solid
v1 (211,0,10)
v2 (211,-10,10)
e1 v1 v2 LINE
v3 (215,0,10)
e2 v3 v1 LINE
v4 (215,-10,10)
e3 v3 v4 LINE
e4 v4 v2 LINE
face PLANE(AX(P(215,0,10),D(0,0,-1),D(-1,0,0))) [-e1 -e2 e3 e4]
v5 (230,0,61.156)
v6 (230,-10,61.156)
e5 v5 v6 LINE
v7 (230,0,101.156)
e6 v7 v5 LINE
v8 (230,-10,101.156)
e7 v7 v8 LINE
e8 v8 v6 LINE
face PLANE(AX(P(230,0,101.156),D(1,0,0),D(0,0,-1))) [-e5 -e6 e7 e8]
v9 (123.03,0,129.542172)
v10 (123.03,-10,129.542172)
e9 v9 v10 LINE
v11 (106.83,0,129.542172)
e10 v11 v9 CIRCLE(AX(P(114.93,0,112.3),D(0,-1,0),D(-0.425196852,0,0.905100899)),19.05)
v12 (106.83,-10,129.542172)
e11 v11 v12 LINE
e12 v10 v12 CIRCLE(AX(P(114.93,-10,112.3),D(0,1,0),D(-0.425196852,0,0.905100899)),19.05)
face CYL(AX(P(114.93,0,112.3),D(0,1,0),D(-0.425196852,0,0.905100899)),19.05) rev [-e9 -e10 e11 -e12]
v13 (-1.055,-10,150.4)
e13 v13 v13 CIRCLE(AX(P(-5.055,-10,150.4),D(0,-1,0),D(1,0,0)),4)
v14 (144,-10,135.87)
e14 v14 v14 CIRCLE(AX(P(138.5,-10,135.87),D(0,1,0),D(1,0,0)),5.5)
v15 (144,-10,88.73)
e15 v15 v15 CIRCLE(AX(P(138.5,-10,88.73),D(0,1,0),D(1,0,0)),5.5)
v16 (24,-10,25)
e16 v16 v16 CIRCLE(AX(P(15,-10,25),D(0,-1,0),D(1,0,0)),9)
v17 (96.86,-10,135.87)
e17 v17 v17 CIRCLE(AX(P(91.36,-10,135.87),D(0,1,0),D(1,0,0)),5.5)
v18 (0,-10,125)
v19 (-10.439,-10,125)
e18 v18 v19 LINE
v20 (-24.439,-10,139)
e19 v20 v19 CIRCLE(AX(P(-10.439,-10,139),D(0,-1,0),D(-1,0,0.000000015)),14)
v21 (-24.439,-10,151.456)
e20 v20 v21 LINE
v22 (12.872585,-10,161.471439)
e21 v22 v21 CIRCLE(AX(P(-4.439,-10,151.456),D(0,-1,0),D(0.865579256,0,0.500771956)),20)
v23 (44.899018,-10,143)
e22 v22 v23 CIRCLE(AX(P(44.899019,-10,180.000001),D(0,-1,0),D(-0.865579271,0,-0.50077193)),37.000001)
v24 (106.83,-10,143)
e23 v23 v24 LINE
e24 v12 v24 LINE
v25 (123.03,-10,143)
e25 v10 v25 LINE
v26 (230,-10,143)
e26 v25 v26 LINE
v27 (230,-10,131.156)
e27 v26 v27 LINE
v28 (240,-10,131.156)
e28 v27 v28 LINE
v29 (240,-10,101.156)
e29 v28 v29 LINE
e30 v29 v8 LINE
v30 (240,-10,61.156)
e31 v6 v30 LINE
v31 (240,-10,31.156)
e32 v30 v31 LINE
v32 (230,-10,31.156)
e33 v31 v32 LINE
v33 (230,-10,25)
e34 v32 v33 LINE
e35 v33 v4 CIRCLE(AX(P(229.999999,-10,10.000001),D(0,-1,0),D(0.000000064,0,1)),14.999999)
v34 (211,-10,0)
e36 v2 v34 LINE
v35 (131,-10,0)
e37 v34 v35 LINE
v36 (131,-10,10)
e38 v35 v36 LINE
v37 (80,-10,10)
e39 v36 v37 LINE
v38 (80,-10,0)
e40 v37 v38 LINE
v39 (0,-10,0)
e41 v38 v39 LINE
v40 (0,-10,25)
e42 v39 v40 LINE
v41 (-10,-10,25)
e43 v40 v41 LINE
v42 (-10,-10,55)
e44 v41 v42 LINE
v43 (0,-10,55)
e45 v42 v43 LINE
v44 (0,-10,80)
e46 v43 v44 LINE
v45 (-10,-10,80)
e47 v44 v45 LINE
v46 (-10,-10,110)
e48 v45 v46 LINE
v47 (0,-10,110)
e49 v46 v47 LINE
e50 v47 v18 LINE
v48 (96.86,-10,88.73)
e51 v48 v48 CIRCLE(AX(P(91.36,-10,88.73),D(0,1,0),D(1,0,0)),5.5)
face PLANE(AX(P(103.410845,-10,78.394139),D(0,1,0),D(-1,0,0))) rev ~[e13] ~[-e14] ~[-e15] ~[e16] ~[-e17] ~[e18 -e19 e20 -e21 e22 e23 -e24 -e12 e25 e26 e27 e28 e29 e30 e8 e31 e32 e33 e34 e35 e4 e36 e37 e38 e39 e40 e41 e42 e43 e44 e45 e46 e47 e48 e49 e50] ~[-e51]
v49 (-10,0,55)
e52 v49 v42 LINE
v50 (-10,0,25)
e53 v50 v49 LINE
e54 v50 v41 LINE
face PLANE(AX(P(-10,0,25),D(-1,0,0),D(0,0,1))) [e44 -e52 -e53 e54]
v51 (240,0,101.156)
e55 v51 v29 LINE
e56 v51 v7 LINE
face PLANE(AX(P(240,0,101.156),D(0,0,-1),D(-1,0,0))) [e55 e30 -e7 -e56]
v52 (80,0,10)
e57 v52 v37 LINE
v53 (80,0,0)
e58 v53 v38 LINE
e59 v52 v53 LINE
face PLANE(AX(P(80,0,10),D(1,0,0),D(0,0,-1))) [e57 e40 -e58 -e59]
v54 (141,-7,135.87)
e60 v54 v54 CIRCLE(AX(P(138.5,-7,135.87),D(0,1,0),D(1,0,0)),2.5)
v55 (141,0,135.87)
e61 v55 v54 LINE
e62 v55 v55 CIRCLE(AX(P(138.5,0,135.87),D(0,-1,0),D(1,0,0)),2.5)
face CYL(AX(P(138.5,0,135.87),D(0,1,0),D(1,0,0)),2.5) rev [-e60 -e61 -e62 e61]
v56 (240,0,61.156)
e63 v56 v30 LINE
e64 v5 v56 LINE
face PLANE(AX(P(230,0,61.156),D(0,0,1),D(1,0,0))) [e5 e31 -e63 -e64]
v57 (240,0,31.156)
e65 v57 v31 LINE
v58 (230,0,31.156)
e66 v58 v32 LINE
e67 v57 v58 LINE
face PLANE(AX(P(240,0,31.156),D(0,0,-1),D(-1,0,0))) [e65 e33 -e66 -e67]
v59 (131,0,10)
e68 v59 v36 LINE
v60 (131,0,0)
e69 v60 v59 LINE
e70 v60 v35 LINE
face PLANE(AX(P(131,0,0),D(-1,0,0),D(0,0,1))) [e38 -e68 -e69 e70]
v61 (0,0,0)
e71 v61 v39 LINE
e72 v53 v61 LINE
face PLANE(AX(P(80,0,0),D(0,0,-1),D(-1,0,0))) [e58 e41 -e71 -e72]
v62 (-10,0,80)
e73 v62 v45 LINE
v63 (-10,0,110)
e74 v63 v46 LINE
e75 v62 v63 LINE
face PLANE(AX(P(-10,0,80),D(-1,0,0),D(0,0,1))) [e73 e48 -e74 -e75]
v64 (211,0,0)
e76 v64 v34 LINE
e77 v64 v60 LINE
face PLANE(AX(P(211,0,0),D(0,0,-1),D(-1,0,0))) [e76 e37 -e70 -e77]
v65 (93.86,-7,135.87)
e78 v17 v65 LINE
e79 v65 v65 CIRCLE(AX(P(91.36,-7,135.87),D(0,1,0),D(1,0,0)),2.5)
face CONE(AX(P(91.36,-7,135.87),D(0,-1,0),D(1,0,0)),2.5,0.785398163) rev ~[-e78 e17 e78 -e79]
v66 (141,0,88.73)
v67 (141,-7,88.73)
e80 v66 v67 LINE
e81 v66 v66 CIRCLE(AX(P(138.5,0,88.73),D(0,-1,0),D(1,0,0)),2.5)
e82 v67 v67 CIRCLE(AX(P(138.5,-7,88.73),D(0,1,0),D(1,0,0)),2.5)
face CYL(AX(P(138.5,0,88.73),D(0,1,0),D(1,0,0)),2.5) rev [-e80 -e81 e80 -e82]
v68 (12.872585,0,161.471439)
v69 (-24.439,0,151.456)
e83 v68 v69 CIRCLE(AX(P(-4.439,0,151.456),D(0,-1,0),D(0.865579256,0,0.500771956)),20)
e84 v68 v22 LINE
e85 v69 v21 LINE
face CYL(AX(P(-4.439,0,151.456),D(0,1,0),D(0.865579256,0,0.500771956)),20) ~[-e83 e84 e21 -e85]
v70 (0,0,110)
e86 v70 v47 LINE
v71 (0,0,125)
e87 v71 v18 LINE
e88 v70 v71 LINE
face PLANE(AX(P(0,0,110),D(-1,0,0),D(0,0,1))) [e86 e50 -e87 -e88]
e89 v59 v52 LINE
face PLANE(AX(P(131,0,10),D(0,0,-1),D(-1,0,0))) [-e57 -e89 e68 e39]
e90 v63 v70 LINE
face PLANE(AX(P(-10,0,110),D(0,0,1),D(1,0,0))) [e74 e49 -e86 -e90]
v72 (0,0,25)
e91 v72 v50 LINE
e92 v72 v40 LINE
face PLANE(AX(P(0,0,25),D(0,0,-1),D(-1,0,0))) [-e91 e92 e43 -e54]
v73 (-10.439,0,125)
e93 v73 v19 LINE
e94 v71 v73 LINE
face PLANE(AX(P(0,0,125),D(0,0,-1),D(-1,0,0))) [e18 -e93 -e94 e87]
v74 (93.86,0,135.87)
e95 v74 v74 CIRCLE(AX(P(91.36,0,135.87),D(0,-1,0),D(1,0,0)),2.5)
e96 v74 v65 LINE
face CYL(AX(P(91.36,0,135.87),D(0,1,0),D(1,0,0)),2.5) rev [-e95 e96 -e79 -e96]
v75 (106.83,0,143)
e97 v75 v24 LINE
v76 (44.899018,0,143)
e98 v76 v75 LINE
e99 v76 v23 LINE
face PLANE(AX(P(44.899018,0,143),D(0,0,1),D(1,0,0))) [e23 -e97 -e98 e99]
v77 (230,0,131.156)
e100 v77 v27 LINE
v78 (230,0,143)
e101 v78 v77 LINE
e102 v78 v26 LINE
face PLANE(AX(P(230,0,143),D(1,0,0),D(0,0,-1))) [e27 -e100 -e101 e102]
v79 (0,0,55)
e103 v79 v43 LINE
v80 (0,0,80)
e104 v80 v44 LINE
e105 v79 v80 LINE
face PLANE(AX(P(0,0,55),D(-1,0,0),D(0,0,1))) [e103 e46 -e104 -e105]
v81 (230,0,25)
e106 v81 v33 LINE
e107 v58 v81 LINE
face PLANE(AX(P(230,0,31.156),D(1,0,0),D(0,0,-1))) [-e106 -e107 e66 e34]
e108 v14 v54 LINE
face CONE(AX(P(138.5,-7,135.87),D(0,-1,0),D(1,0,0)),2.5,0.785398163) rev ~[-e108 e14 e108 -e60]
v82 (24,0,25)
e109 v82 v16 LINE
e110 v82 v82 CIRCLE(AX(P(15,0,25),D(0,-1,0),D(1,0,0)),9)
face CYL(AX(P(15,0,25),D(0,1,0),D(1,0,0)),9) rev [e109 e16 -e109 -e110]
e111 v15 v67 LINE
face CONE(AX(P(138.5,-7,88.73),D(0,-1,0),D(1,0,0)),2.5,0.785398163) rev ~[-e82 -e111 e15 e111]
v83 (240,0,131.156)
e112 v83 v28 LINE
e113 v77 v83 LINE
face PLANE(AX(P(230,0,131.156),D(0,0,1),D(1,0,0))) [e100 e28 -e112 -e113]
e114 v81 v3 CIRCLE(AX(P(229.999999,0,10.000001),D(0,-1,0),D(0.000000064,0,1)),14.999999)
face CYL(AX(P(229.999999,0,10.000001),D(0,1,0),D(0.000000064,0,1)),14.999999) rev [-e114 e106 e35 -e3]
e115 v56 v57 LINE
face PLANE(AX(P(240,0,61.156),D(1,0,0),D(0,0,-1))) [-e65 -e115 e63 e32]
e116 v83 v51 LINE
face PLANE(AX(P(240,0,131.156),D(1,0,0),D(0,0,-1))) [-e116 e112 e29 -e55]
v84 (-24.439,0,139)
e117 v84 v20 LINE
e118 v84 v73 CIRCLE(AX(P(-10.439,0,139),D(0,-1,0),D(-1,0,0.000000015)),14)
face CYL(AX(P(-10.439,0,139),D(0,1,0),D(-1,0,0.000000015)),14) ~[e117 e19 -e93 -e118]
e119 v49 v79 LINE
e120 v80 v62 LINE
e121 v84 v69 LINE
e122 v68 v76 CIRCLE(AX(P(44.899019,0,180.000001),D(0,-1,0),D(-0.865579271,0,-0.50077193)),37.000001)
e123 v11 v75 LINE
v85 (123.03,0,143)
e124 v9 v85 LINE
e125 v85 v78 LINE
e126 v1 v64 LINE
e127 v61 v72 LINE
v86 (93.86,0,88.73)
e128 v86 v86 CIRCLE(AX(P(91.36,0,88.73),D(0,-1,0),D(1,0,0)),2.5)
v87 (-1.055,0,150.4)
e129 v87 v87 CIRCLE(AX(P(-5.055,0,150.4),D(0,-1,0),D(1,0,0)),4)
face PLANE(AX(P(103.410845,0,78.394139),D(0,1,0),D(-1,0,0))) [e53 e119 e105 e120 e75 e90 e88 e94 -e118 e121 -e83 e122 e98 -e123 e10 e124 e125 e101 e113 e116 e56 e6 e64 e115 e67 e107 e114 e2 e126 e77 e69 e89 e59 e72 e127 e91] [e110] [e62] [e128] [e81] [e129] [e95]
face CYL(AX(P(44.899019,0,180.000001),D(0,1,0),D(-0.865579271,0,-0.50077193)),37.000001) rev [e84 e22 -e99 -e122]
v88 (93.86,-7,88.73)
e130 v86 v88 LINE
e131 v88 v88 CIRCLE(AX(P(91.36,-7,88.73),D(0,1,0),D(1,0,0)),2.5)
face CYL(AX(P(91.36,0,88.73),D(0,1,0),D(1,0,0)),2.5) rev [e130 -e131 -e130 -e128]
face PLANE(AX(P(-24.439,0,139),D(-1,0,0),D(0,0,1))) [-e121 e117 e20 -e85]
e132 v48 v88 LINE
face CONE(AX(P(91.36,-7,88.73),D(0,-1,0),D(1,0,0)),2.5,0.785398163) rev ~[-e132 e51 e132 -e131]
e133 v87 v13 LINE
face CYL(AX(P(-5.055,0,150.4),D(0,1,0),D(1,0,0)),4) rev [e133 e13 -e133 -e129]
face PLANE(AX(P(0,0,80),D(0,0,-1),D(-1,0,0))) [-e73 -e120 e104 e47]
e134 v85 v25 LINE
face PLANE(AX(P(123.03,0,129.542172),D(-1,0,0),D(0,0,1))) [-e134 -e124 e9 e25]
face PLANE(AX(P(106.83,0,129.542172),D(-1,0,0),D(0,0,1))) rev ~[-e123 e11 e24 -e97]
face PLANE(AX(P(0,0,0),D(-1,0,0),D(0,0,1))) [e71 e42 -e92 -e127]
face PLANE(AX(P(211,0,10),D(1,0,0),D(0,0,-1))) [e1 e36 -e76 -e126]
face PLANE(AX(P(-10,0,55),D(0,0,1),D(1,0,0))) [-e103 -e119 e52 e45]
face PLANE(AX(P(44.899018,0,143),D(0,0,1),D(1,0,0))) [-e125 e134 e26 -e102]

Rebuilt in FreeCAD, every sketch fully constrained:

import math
import FreeCAD as App
import Part
import Sketcher

V = App.Vector


def edges_at(feature, points):
    """Names of the edges that pass closest to the given points."""
    edges = feature.Shape.Edges
    near = lambda p: min(range(len(edges)), key=lambda i: edges[i].distToShape(Part.Vertex(*p))[0])
    return sorted({f"Edge{near(p) + 1}" for p in points})

doc = App.newDocument("Part")
body = doc.addObject("PartDesign::Body", "Body")

# Sketch on XZ plane
sketch1 = body.newObject("Sketcher::SketchObject", "Sketch")
sketch1.AttachmentSupport = (doc.getObject("XZ_Plane"), [""])
sketch1.MapMode = "FlatFace"
sketch1.addGeometry(Part.LineSegment(V(0, 25, 0), V(0, 0, 0)), False)
sketch1.addGeometry(Part.LineSegment(V(0, 0, 0), V(80, 0, 0)), False)
sketch1.addGeometry(Part.LineSegment(V(80, 0, 0), V(80, 10, 0)), False)
sketch1.addGeometry(Part.LineSegment(V(80, 10, 0), V(131, 10, 0)), False)
sketch1.addGeometry(Part.LineSegment(V(131, 10, 0), V(131, 0, 0)), False)
sketch1.addGeometry(Part.LineSegment(V(131, 0, 0), V(211, 0, 0)), False)
sketch1.addGeometry(Part.LineSegment(V(211, 0, 0), V(211, 10, 0)), False)
sketch1.addGeometry(Part.LineSegment(V(211, 10, 0), V(215, 10, 0)), False)
sketch1.addGeometry(Part.ArcOfCircle(Part.Circle(V(230, 10, 0), V(0, 0, 1), 15), math.radians(90), math.radians(180)), False)
sketch1.addGeometry(Part.LineSegment(V(230, 25, 0), V(230, 31.2, 0)), False)
sketch1.addGeometry(Part.LineSegment(V(230, 31.2, 0), V(240, 31.2, 0)), False)
sketch1.addGeometry(Part.LineSegment(V(240, 31.2, 0), V(240, 61.2, 0)), False)
sketch1.addGeometry(Part.LineSegment(V(240, 61.2, 0), V(230, 61.2, 0)), False)
sketch1.addGeometry(Part.LineSegment(V(230, 61.2, 0), V(230, 101.2, 0)), False)
sketch1.addGeometry(Part.LineSegment(V(230, 101.2, 0), V(240, 101.2, 0)), False)
sketch1.addGeometry(Part.LineSegment(V(240, 101.2, 0), V(240, 131.2, 0)), False)
sketch1.addGeometry(Part.LineSegment(V(240, 131.2, 0), V(230, 131.2, 0)), False)
sketch1.addGeometry(Part.LineSegment(V(230, 131.2, 0), V(230, 143, 0)), False)
sketch1.addGeometry(Part.LineSegment(V(230, 143, 0), V(44.9, 143, 0)), False)
sketch1.addGeometry(Part.ArcOfCircle(Part.Circle(V(44.9, 180, 0), V(0, 0, 1), 37), math.radians(-150), math.radians(-90)), False)
sketch1.addGeometry(Part.ArcOfCircle(Part.Circle(V(-4.4, 151.5, 0), V(0, 0, 1), 20), math.radians(30), math.radians(180)), False)
sketch1.addGeometry(Part.LineSegment(V(-24.4, 151.5, 0), V(-24.4, 139, 0)), False)
sketch1.addGeometry(Part.ArcOfCircle(Part.Circle(V(-10.4, 139, 0), V(0, 0, 1), 14), math.radians(180), math.radians(270)), False)
sketch1.addGeometry(Part.LineSegment(V(-10.4, 125, 0), V(0, 125, 0)), False)
sketch1.addGeometry(Part.LineSegment(V(0, 125, 0), V(0, 110, 0)), False)
sketch1.addGeometry(Part.LineSegment(V(0, 110, 0), V(-10, 110, 0)), False)
sketch1.addGeometry(Part.LineSegment(V(-10, 110, 0), V(-10, 80, 0)), False)
sketch1.addGeometry(Part.LineSegment(V(-10, 80, 0), V(0, 80, 0)), False)
sketch1.addGeometry(Part.LineSegment(V(0, 80, 0), V(0, 55, 0)), False)
sketch1.addGeometry(Part.LineSegment(V(0, 55, 0), V(-10, 55, 0)), False)
sketch1.addGeometry(Part.LineSegment(V(-10, 55, 0), V(-10, 25, 0)), False)
sketch1.addGeometry(Part.LineSegment(V(-10, 25, 0), V(0, 25, 0)), False)
sketch1.addGeometry(Part.Circle(V(15, 25, 0), V(0, 0, 1), 9), False)
sketch1.addGeometry(Part.Circle(V(-5.1, 150.4, 0), V(0, 0, 1), 4), False)
sketch1.addConstraint(Sketcher.Constraint("Coincident", 0, 2, 1, 1))
sketch1.addConstraint(Sketcher.Constraint("Coincident", 1, 2, 2, 1))
sketch1.addConstraint(Sketcher.Constraint("Coincident", 2, 2, 3, 1))
sketch1.addConstraint(Sketcher.Constraint("Coincident", 3, 2, 4, 1))
sketch1.addConstraint(Sketcher.Constraint("Coincident", 4, 2, 5, 1))
sketch1.addConstraint(Sketcher.Constraint("Coincident", 5, 2, 6, 1))
sketch1.addConstraint(Sketcher.Constraint("Coincident", 6, 2, 7, 1))
sketch1.addConstraint(Sketcher.Constraint("Coincident", 7, 2, 8, 2))
sketch1.addConstraint(Sketcher.Constraint("Coincident", 8, 1, 9, 1))
sketch1.addConstraint(Sketcher.Constraint("Coincident", 9, 2, 10, 1))
sketch1.addConstraint(Sketcher.Constraint("Coincident", 10, 2, 11, 1))
sketch1.addConstraint(Sketcher.Constraint("Coincident", 11, 2, 12, 1))
sketch1.addConstraint(Sketcher.Constraint("Coincident", 12, 2, 13, 1))
sketch1.addConstraint(Sketcher.Constraint("Coincident", 13, 2, 14, 1))
sketch1.addConstraint(Sketcher.Constraint("Coincident", 14, 2, 15, 1))
sketch1.addConstraint(Sketcher.Constraint("Coincident", 15, 2, 16, 1))
sketch1.addConstraint(Sketcher.Constraint("Coincident", 16, 2, 17, 1))
sketch1.addConstraint(Sketcher.Constraint("Coincident", 17, 2, 18, 1))
sketch1.addConstraint(Sketcher.Constraint("Tangent", 18, 2, 19, 2))
sketch1.addConstraint(Sketcher.Constraint("Tangent", 19, 1, 20, 1))
sketch1.addConstraint(Sketcher.Constraint("Tangent", 20, 2, 21, 1))
sketch1.addConstraint(Sketcher.Constraint("Tangent", 21, 2, 22, 1))
sketch1.addConstraint(Sketcher.Constraint("Tangent", 22, 2, 23, 1))
sketch1.addConstraint(Sketcher.Constraint("Coincident", 23, 2, 24, 1))
sketch1.addConstraint(Sketcher.Constraint("Coincident", 24, 2, 25, 1))
sketch1.addConstraint(Sketcher.Constraint("Coincident", 25, 2, 26, 1))
sketch1.addConstraint(Sketcher.Constraint("Coincident", 26, 2, 27, 1))
sketch1.addConstraint(Sketcher.Constraint("Coincident", 27, 2, 28, 1))
sketch1.addConstraint(Sketcher.Constraint("Coincident", 28, 2, 29, 1))
sketch1.addConstraint(Sketcher.Constraint("Coincident", 29, 2, 30, 1))
sketch1.addConstraint(Sketcher.Constraint("Coincident", 30, 2, 31, 1))
sketch1.addConstraint(Sketcher.Constraint("Coincident", 31, 2, 0, 1))
sketch1.addConstraint(Sketcher.Constraint("Vertical", 0))
sketch1.addConstraint(Sketcher.Constraint("Horizontal", 1))
sketch1.addConstraint(Sketcher.Constraint("Vertical", 2))
sketch1.addConstraint(Sketcher.Constraint("Horizontal", 3))
sketch1.addConstraint(Sketcher.Constraint("Vertical", 4))
sketch1.addConstraint(Sketcher.Constraint("Horizontal", 5))
sketch1.addConstraint(Sketcher.Constraint("Vertical", 6))
sketch1.addConstraint(Sketcher.Constraint("Horizontal", 7))
sketch1.addConstraint(Sketcher.Constraint("Vertical", 9))
sketch1.addConstraint(Sketcher.Constraint("Horizontal", 10))
sketch1.addConstraint(Sketcher.Constraint("Vertical", 11))
sketch1.addConstraint(Sketcher.Constraint("Horizontal", 12))
sketch1.addConstraint(Sketcher.Constraint("Vertical", 13))
sketch1.addConstraint(Sketcher.Constraint("Horizontal", 14))
sketch1.addConstraint(Sketcher.Constraint("Vertical", 15))
sketch1.addConstraint(Sketcher.Constraint("Horizontal", 16))
sketch1.addConstraint(Sketcher.Constraint("Vertical", 17))
sketch1.addConstraint(Sketcher.Constraint("Horizontal", 18))
sketch1.addConstraint(Sketcher.Constraint("Vertical", 21))
sketch1.addConstraint(Sketcher.Constraint("Horizontal", 23))
sketch1.addConstraint(Sketcher.Constraint("Vertical", 24))
sketch1.addConstraint(Sketcher.Constraint("Horizontal", 25))
sketch1.addConstraint(Sketcher.Constraint("Vertical", 26))
sketch1.addConstraint(Sketcher.Constraint("Horizontal", 27))
sketch1.addConstraint(Sketcher.Constraint("Vertical", 28))
sketch1.addConstraint(Sketcher.Constraint("Horizontal", 29))
sketch1.addConstraint(Sketcher.Constraint("Vertical", 30))
sketch1.addConstraint(Sketcher.Constraint("Horizontal", 31))
sketch1.addConstraint(Sketcher.Constraint("Coincident", 0, 2, -1, 1))
sketch1.addConstraint(Sketcher.Constraint("PointOnObject", 4, 2, -1))
sketch1.addConstraint(Sketcher.Constraint("PointOnObject", 23, 2, -2))
sketch1.addConstraint(Sketcher.Constraint("PointOnObject", 27, 2, -2))
sketch1.addConstraint(Sketcher.Constraint("Horizontal", 8, 3, 2, 2))
sketch1.addConstraint(Sketcher.Constraint("Horizontal", 3, 2, 6, 2))
sketch1.addConstraint(Sketcher.Constraint("Horizontal", 32, 3, 8, 1))
sketch1.addConstraint(Sketcher.Constraint("Horizontal", 8, 1, 30, 2))
sketch1.addConstraint(Sketcher.Constraint("Vertical", 9, 2, 12, 2))
sketch1.addConstraint(Sketcher.Constraint("Vertical", 11, 2, 14, 2))
sketch1.addConstraint(Sketcher.Constraint("Vertical", 13, 2, 16, 2))
sketch1.addConstraint(Sketcher.Constraint("Vertical", 26, 2, 29, 2))
sketch1.addConstraint(Sketcher.Constraint("Equal", 1, 5))
sketch1.addConstraint(Sketcher.Constraint("Equal", 16, 25))
sketch1.addConstraint(Sketcher.Constraint("Equal", 31, 2))
sketch1.addConstraint(Sketcher.Constraint("Equal", 11, 15))
sketch1.addConstraint(Sketcher.Constraint("Equal", 15, 26))
sketch1.addConstraint(Sketcher.Constraint("Equal", 0, 28))
sketch1.addConstraint(Sketcher.Constraint("Equal", 26, 30))
sketch1.addConstraint(Sketcher.Constraint("Diameter", 32, 18.0))
sketch1.addConstraint(Sketcher.Constraint("Diameter", 33, 8.0))
sketch1.addConstraint(Sketcher.Constraint("Radius", 8, 14.999999))
sketch1.addConstraint(Sketcher.Constraint("Radius", 19, 37.000001))
sketch1.addConstraint(Sketcher.Constraint("Radius", 20, 20.0))
sketch1.addConstraint(Sketcher.Constraint("Radius", 22, 14.0))
sketch1.addConstraint(Sketcher.Constraint("DistanceX", 1, 1, 1, 2, 80.0))
sketch1.addConstraint(Sketcher.Constraint("DistanceX", 3, 1, 3, 2, 51.0))
sketch1.addConstraint(Sketcher.Constraint("DistanceX", 7, 1, 7, 2, 4.0))
sketch1.addConstraint(Sketcher.Constraint("DistanceX", 10, 1, 10, 2, 10.0))
sketch1.addConstraint(Sketcher.Constraint("DistanceY", 11, 1, 11, 2, 30.0))
sketch1.addConstraint(Sketcher.Constraint("DistanceY", 13, 1, 13, 2, 40.0))
sketch1.addConstraint(Sketcher.Constraint("DistanceY", 24, 2, 24, 1, 15.0))
sketch1.addConstraint(Sketcher.Constraint("DistanceY", -1, 1, 19, 3, 180.000001))
sketch1.addConstraint(Sketcher.Constraint("DistanceX", -1, 1, 32, 3, 15.0))
sketch1.addConstraint(Sketcher.Constraint("DistanceX", -1, 1, 8, 1, 230.0))
sketch1.addConstraint(Sketcher.Constraint("DistanceY", -1, 1, 33, 3, 150.4))
sketch1.addConstraint(Sketcher.Constraint("DistanceX", 23, 1, 23, 2, 10.439))
sketch1.addConstraint(Sketcher.Constraint("DistanceY", 9, 1, 9, 2, 6.156))
sketch1.addConstraint(Sketcher.Constraint("DistanceY", 21, 2, 21, 1, 12.456))
sketch1.addConstraint(Sketcher.Constraint("DistanceX", 33, 3, -1, 1, 5.055))
pad1 = body.newObject("PartDesign::Pad", "Pad")
pad1.Profile = sketch1
pad1.Length = 10

# Sketch on XZ plane
sketch2 = body.newObject("Sketcher::SketchObject", "Sketch001")
sketch2.AttachmentSupport = (doc.getObject("XZ_Plane"), [""])
sketch2.MapMode = "FlatFace"
sketch2.addGeometry(Part.Circle(V(91.4, 135.9, 0), V(0, 0, 1), 2.5), False)
sketch2.addGeometry(Part.Circle(V(138.5, 135.9, 0), V(0, 0, 1), 2.5), False)
sketch2.addGeometry(Part.Circle(V(91.4, 88.7, 0), V(0, 0, 1), 2.5), False)
sketch2.addGeometry(Part.Circle(V(138.5, 88.7, 0), V(0, 0, 1), 2.5), False)
sketch2.addGeometry(Part.ArcOfCircle(Part.Circle(V(114.9, 112.3, 0), V(0, 0, 1), 19), math.radians(115), math.radians(425)), False)
sketch2.addGeometry(Part.LineSegment(V(123, 129.5, 0), V(123, 177, 0)), False)
sketch2.addGeometry(Part.LineSegment(V(123, 177, 0), V(106.8, 177, 0)), False)
sketch2.addGeometry(Part.LineSegment(V(106.8, 177, 0), V(106.8, 129.5, 0)), False)
sketch2.addConstraint(Sketcher.Constraint("Coincident", 4, 2, 5, 1))
sketch2.addConstraint(Sketcher.Constraint("Coincident", 5, 2, 6, 1))
sketch2.addConstraint(Sketcher.Constraint("Coincident", 6, 2, 7, 1))
sketch2.addConstraint(Sketcher.Constraint("Coincident", 7, 2, 4, 1))
sketch2.addConstraint(Sketcher.Constraint("Vertical", 5))
sketch2.addConstraint(Sketcher.Constraint("Horizontal", 6))
sketch2.addConstraint(Sketcher.Constraint("Vertical", 7))
sketch2.addConstraint(Sketcher.Constraint("Equal", 0, 1))
sketch2.addConstraint(Sketcher.Constraint("Equal", 1, 2))
sketch2.addConstraint(Sketcher.Constraint("Equal", 2, 3))
sketch2.addConstraint(Sketcher.Constraint("Horizontal", 0, 3, 1, 3))
sketch2.addConstraint(Sketcher.Constraint("Horizontal", 2, 3, 3, 3))
sketch2.addConstraint(Sketcher.Constraint("Horizontal", 4, 2, 7, 2))
sketch2.addConstraint(Sketcher.Constraint("Vertical", 0, 3, 2, 3))
sketch2.addConstraint(Sketcher.Constraint("Vertical", 1, 3, 3, 3))
sketch2.addConstraint(Sketcher.Constraint("Diameter", 0, 5.0))
sketch2.addConstraint(Sketcher.Constraint("Radius", 4, 19.05))
sketch2.addConstraint(Sketcher.Constraint("DistanceX", 6, 2, 6, 1, 16.2))
sketch2.addConstraint(Sketcher.Constraint("DistanceY", 5, 1, 5, 2, 47.47))
sketch2.addConstraint(Sketcher.Constraint("DistanceX", -1, 1, 1, 3, 138.5))
sketch2.addConstraint(Sketcher.Constraint("DistanceY", -1, 1, 4, 3, 112.3))
sketch2.addConstraint(Sketcher.Constraint("DistanceX", -1, 1, 0, 3, 91.36))
sketch2.addConstraint(Sketcher.Constraint("DistanceY", -1, 1, 0, 3, 135.87))
sketch2.addConstraint(Sketcher.Constraint("DistanceY", -1, 1, 2, 3, 88.73))
sketch2.addConstraint(Sketcher.Constraint("DistanceX", -1, 1, 4, 3, 114.93))
pocket1 = body.newObject("PartDesign::Pocket", "Pocket")
pocket1.Profile = sketch2
pocket1.Type = "ThroughAll"
pocket1.Reversed = True
doc.recompute()

chamfer = body.newObject("PartDesign::Chamfer", "Chamfer")
chamfer.Base = (pocket1, edges_at(pocket1, [
    (136, -10, 135.87),
    (88.86, -10, 88.73),
    (88.86, -10, 135.87),
    (136, -10, 88.73),
]))
chamfer.Size = 3

doc.recompute()
